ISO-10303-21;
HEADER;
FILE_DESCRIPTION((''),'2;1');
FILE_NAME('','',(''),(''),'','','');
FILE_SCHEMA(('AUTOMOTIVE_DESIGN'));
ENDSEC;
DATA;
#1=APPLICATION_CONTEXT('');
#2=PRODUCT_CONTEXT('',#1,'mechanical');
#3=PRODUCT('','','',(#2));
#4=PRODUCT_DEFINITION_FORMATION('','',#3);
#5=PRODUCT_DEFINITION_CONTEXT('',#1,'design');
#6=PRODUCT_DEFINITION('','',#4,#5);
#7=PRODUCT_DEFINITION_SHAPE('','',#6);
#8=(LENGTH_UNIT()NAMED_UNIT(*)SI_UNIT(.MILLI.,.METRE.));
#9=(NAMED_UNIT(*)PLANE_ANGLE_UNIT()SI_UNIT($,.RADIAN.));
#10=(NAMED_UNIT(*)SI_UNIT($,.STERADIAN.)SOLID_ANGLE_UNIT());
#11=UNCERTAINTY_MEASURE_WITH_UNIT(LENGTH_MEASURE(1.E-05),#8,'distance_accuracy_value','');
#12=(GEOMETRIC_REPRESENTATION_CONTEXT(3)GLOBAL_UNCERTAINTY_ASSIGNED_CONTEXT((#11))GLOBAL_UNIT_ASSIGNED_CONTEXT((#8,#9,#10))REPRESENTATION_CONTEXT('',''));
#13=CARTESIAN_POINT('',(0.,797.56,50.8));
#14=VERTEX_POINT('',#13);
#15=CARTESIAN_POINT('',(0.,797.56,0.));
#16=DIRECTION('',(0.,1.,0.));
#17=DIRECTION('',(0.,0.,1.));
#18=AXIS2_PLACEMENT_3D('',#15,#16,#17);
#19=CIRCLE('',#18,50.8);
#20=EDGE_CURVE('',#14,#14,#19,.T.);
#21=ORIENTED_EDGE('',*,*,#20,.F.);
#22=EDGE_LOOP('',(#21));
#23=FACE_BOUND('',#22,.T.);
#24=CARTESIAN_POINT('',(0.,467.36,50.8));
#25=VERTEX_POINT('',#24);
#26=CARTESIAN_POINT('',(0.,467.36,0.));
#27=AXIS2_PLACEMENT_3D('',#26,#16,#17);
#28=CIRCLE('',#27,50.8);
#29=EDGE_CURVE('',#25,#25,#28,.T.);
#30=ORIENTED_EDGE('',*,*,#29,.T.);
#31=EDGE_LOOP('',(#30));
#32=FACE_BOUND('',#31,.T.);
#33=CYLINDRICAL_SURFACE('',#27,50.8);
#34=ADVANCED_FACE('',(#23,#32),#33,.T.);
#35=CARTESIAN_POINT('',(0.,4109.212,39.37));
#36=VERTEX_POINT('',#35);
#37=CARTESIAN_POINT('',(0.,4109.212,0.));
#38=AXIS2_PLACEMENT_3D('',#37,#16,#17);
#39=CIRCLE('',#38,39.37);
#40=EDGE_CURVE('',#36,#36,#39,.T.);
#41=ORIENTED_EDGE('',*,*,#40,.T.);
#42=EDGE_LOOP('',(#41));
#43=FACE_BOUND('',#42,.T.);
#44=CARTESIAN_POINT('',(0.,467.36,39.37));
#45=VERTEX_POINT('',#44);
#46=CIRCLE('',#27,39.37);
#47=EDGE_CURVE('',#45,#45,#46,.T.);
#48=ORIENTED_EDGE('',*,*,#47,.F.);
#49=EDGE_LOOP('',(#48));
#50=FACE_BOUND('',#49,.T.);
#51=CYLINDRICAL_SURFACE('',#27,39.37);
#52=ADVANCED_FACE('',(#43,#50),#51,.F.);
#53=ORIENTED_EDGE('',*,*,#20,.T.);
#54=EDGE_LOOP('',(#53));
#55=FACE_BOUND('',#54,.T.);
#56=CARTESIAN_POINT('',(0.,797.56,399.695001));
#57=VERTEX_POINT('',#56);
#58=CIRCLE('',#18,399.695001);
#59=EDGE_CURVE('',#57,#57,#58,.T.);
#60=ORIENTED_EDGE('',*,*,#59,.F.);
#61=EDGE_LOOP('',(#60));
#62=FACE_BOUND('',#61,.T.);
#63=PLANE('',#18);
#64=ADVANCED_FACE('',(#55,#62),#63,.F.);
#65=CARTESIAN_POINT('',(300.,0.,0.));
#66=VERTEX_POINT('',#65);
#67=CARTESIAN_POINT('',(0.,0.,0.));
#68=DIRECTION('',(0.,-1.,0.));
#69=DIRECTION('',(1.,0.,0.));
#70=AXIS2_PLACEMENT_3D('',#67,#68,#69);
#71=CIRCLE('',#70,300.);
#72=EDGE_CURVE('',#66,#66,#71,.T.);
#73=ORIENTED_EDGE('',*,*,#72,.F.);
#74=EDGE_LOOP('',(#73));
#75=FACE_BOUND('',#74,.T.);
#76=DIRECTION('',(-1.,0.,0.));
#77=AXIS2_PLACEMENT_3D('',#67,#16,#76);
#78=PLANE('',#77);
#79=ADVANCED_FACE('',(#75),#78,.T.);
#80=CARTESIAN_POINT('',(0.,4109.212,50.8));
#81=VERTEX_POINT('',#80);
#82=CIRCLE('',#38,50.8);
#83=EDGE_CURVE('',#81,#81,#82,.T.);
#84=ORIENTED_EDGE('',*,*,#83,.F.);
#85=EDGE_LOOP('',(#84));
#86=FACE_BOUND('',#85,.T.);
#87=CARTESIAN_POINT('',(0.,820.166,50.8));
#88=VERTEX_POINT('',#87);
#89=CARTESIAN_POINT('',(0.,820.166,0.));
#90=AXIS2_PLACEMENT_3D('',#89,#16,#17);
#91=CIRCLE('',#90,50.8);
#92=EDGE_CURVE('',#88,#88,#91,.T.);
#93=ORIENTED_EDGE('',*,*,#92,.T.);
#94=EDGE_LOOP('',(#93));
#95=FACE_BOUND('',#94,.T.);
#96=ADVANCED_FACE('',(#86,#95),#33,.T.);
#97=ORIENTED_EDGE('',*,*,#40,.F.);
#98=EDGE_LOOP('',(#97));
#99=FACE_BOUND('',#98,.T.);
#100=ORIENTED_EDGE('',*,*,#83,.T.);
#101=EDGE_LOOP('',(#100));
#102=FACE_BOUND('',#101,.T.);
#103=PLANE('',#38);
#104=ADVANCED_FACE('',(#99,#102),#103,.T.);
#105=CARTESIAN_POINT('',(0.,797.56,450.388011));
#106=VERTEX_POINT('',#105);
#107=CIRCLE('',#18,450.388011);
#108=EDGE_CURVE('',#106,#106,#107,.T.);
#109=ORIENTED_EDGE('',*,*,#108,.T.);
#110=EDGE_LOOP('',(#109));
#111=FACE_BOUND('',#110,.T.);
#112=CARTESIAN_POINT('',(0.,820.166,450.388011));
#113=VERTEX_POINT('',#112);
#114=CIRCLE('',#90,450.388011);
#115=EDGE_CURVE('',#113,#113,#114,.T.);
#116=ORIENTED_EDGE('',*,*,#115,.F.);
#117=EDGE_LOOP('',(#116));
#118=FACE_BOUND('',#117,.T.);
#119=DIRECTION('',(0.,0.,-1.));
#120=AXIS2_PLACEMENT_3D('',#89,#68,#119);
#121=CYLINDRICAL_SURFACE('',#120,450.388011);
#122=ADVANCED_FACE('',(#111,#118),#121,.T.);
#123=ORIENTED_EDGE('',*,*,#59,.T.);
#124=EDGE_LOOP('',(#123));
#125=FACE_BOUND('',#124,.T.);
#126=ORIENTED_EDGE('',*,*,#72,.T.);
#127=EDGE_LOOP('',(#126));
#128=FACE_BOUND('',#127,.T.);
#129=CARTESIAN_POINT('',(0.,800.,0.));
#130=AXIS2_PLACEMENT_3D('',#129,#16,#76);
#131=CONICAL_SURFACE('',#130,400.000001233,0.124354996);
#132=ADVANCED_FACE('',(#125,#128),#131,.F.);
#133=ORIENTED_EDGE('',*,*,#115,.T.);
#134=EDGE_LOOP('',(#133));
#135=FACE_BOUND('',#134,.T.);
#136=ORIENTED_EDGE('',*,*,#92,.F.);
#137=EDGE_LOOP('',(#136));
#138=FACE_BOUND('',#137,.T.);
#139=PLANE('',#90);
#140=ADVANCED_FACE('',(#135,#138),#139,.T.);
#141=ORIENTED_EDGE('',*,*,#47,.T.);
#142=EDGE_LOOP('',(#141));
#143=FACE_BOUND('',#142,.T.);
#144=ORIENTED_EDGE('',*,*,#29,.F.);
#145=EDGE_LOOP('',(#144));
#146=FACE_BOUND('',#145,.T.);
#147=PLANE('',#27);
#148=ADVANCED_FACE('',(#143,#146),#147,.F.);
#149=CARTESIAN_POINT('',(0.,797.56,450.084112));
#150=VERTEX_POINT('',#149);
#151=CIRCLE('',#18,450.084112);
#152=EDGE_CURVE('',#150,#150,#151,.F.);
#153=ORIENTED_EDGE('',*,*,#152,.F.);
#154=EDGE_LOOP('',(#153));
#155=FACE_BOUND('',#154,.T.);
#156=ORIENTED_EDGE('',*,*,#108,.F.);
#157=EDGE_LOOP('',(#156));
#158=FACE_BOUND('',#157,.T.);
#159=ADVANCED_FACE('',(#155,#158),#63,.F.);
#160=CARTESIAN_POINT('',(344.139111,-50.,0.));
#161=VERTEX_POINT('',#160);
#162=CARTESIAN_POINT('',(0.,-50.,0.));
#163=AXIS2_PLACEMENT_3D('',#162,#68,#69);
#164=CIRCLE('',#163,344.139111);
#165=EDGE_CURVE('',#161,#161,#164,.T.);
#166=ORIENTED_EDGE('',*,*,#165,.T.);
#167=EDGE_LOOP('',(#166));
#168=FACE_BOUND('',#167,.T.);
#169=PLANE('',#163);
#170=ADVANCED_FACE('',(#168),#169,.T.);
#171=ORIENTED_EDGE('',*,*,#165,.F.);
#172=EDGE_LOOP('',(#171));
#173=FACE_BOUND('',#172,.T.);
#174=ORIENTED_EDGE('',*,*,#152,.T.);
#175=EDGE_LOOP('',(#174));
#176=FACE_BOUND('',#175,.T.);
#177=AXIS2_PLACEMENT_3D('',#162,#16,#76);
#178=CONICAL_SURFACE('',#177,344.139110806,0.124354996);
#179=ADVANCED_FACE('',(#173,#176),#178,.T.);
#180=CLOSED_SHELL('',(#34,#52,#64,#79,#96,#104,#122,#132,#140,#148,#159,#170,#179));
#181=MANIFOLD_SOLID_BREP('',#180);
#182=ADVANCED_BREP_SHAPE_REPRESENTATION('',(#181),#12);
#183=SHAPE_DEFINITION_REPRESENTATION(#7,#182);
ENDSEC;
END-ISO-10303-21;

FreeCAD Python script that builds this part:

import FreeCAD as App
import Part
import Sketcher
from FreeCAD import Vector
Q = App.Units.Quantity

doc = App.newDocument("Part")
body = doc.addObject("PartDesign::Body", "Body")

sketch1 = body.newObject("Sketcher::SketchObject", "Sketch")
sketch1.AttachmentSupport = (doc.getObject("XY_Plane"), [""])
sketch1.MapMode = "FlatFace"
sketch1.addGeometry([
    Part.LineSegment(Vector(0, 0, 0), Vector(0, -50, 0)),
    Part.LineSegment(Vector(0, -50, 0), Vector(344.139111, -50, 0)),
    Part.LineSegment(Vector(344.139111, -50, 0), Vector(450.388011, 799.991191, 0)),
    Part.LineSegment(Vector(450.388011, 799.991191, 0), Vector(400.000001, 800, 0)),
    Part.LineSegment(Vector(400.000001, 800, 0), Vector(300, 0, 0)),
    Part.LineSegment(Vector(300, 0, 0), Vector(0, 0, 0)),
], False)
sketch1.addConstraint([
    Sketcher.Constraint("Coincident", 0, 2, 1, 1),
    Sketcher.Constraint("Coincident", 1, 2, 2, 1),
    Sketcher.Constraint("Coincident", 2, 2, 3, 1),
    Sketcher.Constraint("Coincident", 3, 2, 4, 1),
    Sketcher.Constraint("Coincident", 4, 2, 5, 1),
    Sketcher.Constraint("Coincident", 5, 2, 0, 1),
    Sketcher.Constraint("Vertical", 0),
    Sketcher.Constraint("Horizontal", 1),
    Sketcher.Constraint("Horizontal", 5),
    Sketcher.Constraint("Coincident", 5, 2, -1, 1),
    Sketcher.Constraint("Parallel", 2, 4),
    Sketcher.Constraint("Angle", 3, Q("179.989983 deg")),
    Sketcher.Constraint("DistanceX", 5, 2, 5, 1, 300.0),
    Sketcher.Constraint("DistanceY", 0, 2, 0, 1, 50.0),
    Sketcher.Constraint("DistanceX", 1, 1, 1, 2, 344.139111),
    Sketcher.Constraint("DistanceX", -1, 1, 3, 2, 400.000001),
    Sketcher.Constraint("DistanceY", -1, 1, 3, 2, 800.0),
])
revolution = body.newObject("PartDesign::Revolution", "Revolution")
revolution.Profile = sketch1
revolution.ReferenceAxis = (sketch1, ["V_Axis"])
revolution.Angle = 360

sketch2 = body.newObject("Sketcher::SketchObject", "Sketch001")
sketch2.AttachmentSupport = (doc.getObject("XZ_Plane"), [""])
sketch2.MapMode = "FlatFace"
sketch2.AttachmentOffset = App.Placement(Vector(0, 0, -31.4 * 25.4), App.Rotation())
sketch2.addGeometry([
    Part.Circle(Vector(0, 0, 0), Vector(0, 0, 1), 450.388011),
    Part.Circle(Vector(0, 0, 0), Vector(0, 0, 1), 50.774314),
], False)
sketch2.addConstraint([
    Sketcher.Constraint("Coincident", 0, 3, -1, 1),
    Sketcher.Constraint("Coincident", 1, 3, -1, 1),
    Sketcher.Constraint("Diameter", 1, 101.548628),
    Sketcher.Constraint("Diameter", 0, 900.776022),
])
pad1 = body.newObject("PartDesign::Pad", "Pad")
pad1.Profile = sketch2
pad1.Length = Q("0.89 in")
pad1.Reversed = True

sketch3 = body.newObject("Sketcher::SketchObject", "Sketch002")
sketch3.AttachmentSupport = (doc.getObject("XZ_Plane"), [""])
sketch3.MapMode = "FlatFace"
sketch3.AttachmentOffset = App.Placement(Vector(0, 0, -31.4 * 25.4), App.Rotation())
sketch3.addGeometry([
    Part.Circle(Vector(0, 0, 0), Vector(0, 0, 1), 50.8),
    Part.Circle(Vector(0, 0, 0), Vector(0, 0, 1), 39.37),
], False)
sketch3.addConstraint([
    Sketcher.Constraint("Coincident", 0, 3, -1, 1),
    Sketcher.Constraint("Coincident", 1, 3, -1, 1),
    Sketcher.Constraint("Diameter", 0, Q("4 in")),
    Sketcher.Constraint("Diameter", 1, Q("3.1 in")),
])
pad2 = body.newObject("PartDesign::Pad", "Pad001")
pad2.Profile = sketch3
pad2.Type = "TwoLengths"
pad2.Length = Q("130.38 in")
pad2.Length2 = Q("13 in")
pad2.Reversed = True

doc.recompute()
